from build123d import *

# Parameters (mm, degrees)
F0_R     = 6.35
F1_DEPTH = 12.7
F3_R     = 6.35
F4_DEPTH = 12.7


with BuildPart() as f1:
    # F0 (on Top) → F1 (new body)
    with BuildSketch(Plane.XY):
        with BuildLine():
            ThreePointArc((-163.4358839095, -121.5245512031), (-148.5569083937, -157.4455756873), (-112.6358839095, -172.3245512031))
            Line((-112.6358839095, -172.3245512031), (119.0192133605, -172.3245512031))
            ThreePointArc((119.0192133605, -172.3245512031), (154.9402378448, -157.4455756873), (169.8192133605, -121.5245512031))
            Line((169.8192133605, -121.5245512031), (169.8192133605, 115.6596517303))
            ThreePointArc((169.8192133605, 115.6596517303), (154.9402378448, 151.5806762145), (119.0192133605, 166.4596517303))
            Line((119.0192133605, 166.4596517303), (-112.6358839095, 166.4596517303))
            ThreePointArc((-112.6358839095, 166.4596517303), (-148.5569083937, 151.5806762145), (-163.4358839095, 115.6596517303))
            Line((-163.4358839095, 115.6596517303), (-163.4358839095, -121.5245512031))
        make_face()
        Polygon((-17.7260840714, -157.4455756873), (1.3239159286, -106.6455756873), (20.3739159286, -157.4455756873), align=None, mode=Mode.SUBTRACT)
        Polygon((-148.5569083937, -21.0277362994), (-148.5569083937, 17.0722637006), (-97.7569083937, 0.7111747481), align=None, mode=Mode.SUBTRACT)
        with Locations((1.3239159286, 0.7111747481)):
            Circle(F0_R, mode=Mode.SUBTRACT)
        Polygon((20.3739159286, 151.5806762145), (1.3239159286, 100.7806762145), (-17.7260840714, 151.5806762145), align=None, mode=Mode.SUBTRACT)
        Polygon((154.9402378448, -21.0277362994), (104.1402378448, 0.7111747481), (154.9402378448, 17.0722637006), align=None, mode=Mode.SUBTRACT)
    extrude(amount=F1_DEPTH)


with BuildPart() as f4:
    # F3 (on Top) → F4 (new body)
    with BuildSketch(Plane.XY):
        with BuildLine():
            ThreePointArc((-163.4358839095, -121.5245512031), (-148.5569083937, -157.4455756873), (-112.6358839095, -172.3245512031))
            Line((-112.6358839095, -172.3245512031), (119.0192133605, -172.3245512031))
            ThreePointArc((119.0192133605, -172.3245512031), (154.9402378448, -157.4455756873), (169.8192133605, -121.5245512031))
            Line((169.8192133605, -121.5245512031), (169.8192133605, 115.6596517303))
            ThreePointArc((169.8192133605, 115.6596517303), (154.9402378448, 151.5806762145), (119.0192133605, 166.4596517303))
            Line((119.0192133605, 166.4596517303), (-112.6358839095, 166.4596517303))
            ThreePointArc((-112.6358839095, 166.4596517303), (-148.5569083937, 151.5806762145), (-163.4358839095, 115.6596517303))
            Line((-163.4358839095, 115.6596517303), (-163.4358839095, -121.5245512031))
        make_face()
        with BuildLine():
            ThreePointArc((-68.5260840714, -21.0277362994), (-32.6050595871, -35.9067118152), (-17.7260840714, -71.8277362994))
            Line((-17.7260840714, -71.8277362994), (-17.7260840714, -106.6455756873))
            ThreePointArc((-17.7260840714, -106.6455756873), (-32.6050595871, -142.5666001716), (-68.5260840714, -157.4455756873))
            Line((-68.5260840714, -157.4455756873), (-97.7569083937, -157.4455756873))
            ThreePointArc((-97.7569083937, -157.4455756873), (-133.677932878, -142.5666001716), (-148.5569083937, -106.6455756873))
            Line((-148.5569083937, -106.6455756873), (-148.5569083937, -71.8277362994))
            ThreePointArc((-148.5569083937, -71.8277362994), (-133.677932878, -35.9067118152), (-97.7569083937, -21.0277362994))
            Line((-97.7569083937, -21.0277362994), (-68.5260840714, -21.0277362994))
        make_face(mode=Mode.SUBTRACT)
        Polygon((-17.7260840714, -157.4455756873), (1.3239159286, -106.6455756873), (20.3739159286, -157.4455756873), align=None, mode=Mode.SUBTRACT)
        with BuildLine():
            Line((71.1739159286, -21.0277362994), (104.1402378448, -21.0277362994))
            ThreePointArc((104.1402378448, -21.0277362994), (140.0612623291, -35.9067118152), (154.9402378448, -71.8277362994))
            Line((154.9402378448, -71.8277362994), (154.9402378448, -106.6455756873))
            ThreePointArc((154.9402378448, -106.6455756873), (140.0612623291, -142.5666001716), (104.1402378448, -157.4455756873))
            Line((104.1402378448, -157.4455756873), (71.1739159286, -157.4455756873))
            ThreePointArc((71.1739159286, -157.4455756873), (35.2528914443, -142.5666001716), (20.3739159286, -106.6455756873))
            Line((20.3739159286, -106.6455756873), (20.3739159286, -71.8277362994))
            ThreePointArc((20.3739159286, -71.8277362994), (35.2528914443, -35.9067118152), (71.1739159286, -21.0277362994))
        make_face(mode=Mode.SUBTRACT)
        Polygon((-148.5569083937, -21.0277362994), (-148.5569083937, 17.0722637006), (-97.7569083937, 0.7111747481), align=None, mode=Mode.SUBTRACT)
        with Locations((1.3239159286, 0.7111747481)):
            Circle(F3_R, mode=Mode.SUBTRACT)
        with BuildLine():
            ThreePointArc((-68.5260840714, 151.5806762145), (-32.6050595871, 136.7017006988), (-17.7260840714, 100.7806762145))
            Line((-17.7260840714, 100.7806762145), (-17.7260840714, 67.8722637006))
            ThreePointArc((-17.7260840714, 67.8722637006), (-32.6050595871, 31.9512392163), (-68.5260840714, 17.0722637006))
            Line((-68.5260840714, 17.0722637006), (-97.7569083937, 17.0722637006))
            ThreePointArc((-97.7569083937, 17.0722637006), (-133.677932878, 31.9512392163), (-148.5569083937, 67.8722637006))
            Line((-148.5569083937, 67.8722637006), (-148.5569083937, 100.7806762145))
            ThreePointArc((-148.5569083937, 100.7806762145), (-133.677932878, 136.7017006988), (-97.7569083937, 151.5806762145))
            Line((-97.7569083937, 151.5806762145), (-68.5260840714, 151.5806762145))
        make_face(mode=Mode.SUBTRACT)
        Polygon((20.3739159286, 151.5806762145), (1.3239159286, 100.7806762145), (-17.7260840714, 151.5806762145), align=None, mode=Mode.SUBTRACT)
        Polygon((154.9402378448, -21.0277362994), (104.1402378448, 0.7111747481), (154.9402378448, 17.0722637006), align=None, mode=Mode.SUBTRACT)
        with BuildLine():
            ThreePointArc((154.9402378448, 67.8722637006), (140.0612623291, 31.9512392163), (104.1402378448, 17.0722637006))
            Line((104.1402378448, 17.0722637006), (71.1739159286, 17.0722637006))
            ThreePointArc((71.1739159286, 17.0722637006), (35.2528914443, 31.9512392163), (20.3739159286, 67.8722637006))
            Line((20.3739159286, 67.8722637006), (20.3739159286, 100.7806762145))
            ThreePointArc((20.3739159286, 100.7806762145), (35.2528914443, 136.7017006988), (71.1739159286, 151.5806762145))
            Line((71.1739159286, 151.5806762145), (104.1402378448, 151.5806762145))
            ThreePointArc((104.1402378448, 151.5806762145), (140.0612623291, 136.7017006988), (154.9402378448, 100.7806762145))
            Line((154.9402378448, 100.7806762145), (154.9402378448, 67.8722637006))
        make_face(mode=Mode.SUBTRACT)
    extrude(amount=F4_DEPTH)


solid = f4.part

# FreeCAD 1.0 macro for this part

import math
import FreeCAD as App
import Part
import Sketcher
from FreeCAD import Vector
Q = App.Units.Quantity

doc = App.newDocument("Part")
body = doc.addObject("PartDesign::Body", "Body")

# Sketch on XY plane
sketch1 = doc.addObject("Sketcher::SketchObject", "Sketch")
body.addObject(sketch1)
sketch1.AttachmentSupport = (doc.XY_Plane, [""])
sketch1.MapMode = "FlatFace"
sketch1.addGeometry([
    Part.ArcOfCircle(Part.Circle(Vector(-113, -122, 0), Vector(0, 0, 1), 51), math.radians(180), math.radians(270)),  # 0
    Part.LineSegment(Vector(-113, -172, 0), Vector(119, -172, 0)),  # 1
    Part.ArcOfCircle(Part.Circle(Vector(119, -122, 0), Vector(0, 0, 1), 51), math.radians(-90), math.radians(0)),  # 2
    Part.LineSegment(Vector(170, -122, 0), Vector(170, 116, 0)),  # 3
    Part.ArcOfCircle(Part.Circle(Vector(119, 116, 0), Vector(0, 0, 1), 51), math.radians(0), math.radians(90)),  # 4
    Part.LineSegment(Vector(119, 166, 0), Vector(-113, 166, 0)),  # 5
    Part.ArcOfCircle(Part.Circle(Vector(-113, 116, 0), Vector(0, 0, 1), 51), math.radians(90), math.radians(180)),  # 6
    Part.LineSegment(Vector(-163, 116, 0), Vector(-163, -122, 0)),  # 7
    Part.LineSegment(Vector(20, -157, 0), Vector(-18, -157, 0)),  # 8
    Part.LineSegment(Vector(-18, -157, 0), Vector(1, -107, 0)),  # 9
    Part.LineSegment(Vector(1, -107, 0), Vector(20, -157, 0)),  # 10
    Part.LineSegment(Vector(-98, 1, 0), Vector(-149, -21, 0)),  # 11
    Part.LineSegment(Vector(-149, -21, 0), Vector(-149, 17, 0)),  # 12
    Part.LineSegment(Vector(-149, 17, 0), Vector(-98, 1, 0)),  # 13
    Part.Circle(Vector(1, 1, 0), Vector(0, 0, 1), 6),  # 14
    Part.LineSegment(Vector(-18, 152, 0), Vector(20, 152, 0)),  # 15
    Part.LineSegment(Vector(20, 152, 0), Vector(1, 101, 0)),  # 16
    Part.LineSegment(Vector(1, 101, 0), Vector(-18, 152, 0)),  # 17
    Part.LineSegment(Vector(155, 17, 0), Vector(155, -21, 0)),  # 18
    Part.LineSegment(Vector(155, -21, 0), Vector(104, 1, 0)),  # 19
    Part.LineSegment(Vector(104, 1, 0), Vector(155, 17, 0)),  # 20
], False)
sketch1.addConstraint([
    Sketcher.Constraint("Tangent", 0, 2, 1, 1),
    Sketcher.Constraint("Tangent", 1, 2, 2, 1),
    Sketcher.Constraint("Tangent", 2, 2, 3, 1),
    Sketcher.Constraint("Tangent", 3, 2, 4, 1),
    Sketcher.Constraint("Tangent", 4, 2, 5, 1),
    Sketcher.Constraint("Tangent", 5, 2, 6, 1),
    Sketcher.Constraint("Tangent", 6, 2, 7, 1),
    Sketcher.Constraint("Tangent", 7, 2, 0, 1),
    Sketcher.Constraint("Coincident", 8, 2, 9, 1),
    Sketcher.Constraint("Coincident", 9, 2, 10, 1),
    Sketcher.Constraint("Coincident", 10, 2, 8, 1),
    Sketcher.Constraint("Coincident", 11, 2, 12, 1),
    Sketcher.Constraint("Coincident", 12, 2, 13, 1),
    Sketcher.Constraint("Coincident", 13, 2, 11, 1),
    Sketcher.Constraint("Coincident", 15, 2, 16, 1),
    Sketcher.Constraint("Coincident", 16, 2, 17, 1),
    Sketcher.Constraint("Coincident", 17, 2, 15, 1),
    Sketcher.Constraint("Coincident", 18, 2, 19, 1),
    Sketcher.Constraint("Coincident", 19, 2, 20, 1),
    Sketcher.Constraint("Coincident", 20, 2, 18, 1),
    Sketcher.Constraint("Horizontal", 1),
    Sketcher.Constraint("Vertical", 3),
    Sketcher.Constraint("Horizontal", 5),
    Sketcher.Constraint("Vertical", 7),
    Sketcher.Constraint("Horizontal", 8),
    Sketcher.Constraint("Vertical", 12),
    Sketcher.Constraint("Horizontal", 15),
    Sketcher.Constraint("Vertical", 18),
    Sketcher.Constraint("Equal", 0, 2),
    Sketcher.Constraint("Equal", 2, 4),
    Sketcher.Constraint("Equal", 4, 6),
    Sketcher.Constraint("Parallel", 9, 16),
    Sketcher.Constraint("Parallel", 10, 17),
    Sketcher.Constraint("Horizontal", 14, 3, 13, 2),
    Sketcher.Constraint("Horizontal", 11, 2, 18, 2),
    Sketcher.Constraint("Horizontal", 13, 2, 19, 2),
    Sketcher.Constraint("Horizontal", 12, 2, 20, 2),
    Sketcher.Constraint("Vertical", 14, 3, 9, 2),
    Sketcher.Constraint("Vertical", 10, 2, 15, 2),
    Sketcher.Constraint("Vertical", 9, 2, 16, 2),
    Sketcher.Constraint("Vertical", 8, 2, 17, 2),
    Sketcher.Constraint("Equal", 15, 12),
    Sketcher.Constraint("Equal", 11, 19),
    Sketcher.Constraint("Radius", 0, Q("2 in")),
    Sketcher.Constraint("Diameter", 14, Q("0.5 in")),
    Sketcher.Constraint("DistanceX", 8, 2, 8, 1, Q("1.5 in")),
    Sketcher.Constraint("DistanceY", 8, 2, 9, 2, Q("2 in")),
    Sketcher.Constraint("DistanceX", 12, 2, 13, 2, Q("2 in")),
    Sketcher.Constraint("DistanceX", 6, 3, 14, 3, 113.9598),
    Sketcher.Constraint("DistanceY", 14, 3, 15, 2, 150.869501),
    Sketcher.Constraint("DistanceX", 1, 1, 1, 2, 231.655097),
    Sketcher.Constraint("DistanceY", 3, 1, 3, 2, 237.184203),
    Sketcher.Constraint("DistanceY", 0, 3, -1, 1, 121.524551),
    Sketcher.Constraint("DistanceX", 11, 2, -1, 1, 148.556908),
    Sketcher.Constraint("DistanceY", 9, 2, 14, 3, 107.35675),
    Sketcher.Constraint("DistanceY", 11, 2, 6, 2, 136.687388),
    Sketcher.Constraint("DistanceY", 11, 2, 14, 3, 21.738911),
    Sketcher.Constraint("DistanceX", 14, 3, 18, 2, 153.616322),
    Sketcher.Constraint("DistanceX", 0, 3, -1, 1, 112.635884),
])
pad1 = doc.addObject("PartDesign::Pad", "Pad")
body.addObject(pad1)
pad1.Profile = sketch1
pad1.Length = Q("0.5 in")
body2 = doc.addObject("PartDesign::Body", "Body001")

# Sketch on XY plane
sketch2 = doc.addObject("Sketcher::SketchObject", "Sketch001")
body2.addObject(sketch2)
sketch2.AttachmentSupport = (doc.getObject("XY_Plane001"), [""])
sketch2.MapMode = "FlatFace"
sketch2.addGeometry([
    Part.ArcOfCircle(Part.Circle(Vector(-113, -122, 0), Vector(0, 0, 1), 51), math.radians(180), math.radians(270)),  # 0
    Part.LineSegment(Vector(-113, -172, 0), Vector(119, -172, 0)),  # 1
    Part.ArcOfCircle(Part.Circle(Vector(119, -122, 0), Vector(0, 0, 1), 51), math.radians(-90), math.radians(0)),  # 2
    Part.LineSegment(Vector(170, -122, 0), Vector(170, 116, 0)),  # 3
    Part.ArcOfCircle(Part.Circle(Vector(119, 116, 0), Vector(0, 0, 1), 51), math.radians(0), math.radians(90)),  # 4
    Part.LineSegment(Vector(119, 166, 0), Vector(-113, 166, 0)),  # 5
    Part.ArcOfCircle(Part.Circle(Vector(-113, 116, 0), Vector(0, 0, 1), 51), math.radians(90), math.radians(180)),  # 6
    Part.LineSegment(Vector(-163, 116, 0), Vector(-163, -122, 0)),  # 7
    Part.LineSegment(Vector(-98, -21, 0), Vector(-69, -21, 0)),  # 8
    Part.ArcOfCircle(Part.Circle(Vector(-69, -72, 0), Vector(0, 0, 1), 51), math.radians(0), math.radians(90)),  # 9
    Part.LineSegment(Vector(-18, -72, 0), Vector(-18, -107, 0)),  # 10
    Part.ArcOfCircle(Part.Circle(Vector(-69, -107, 0), Vector(0, 0, 1), 51), math.radians(-90), math.radians(0)),  # 11
    Part.LineSegment(Vector(-69, -157, 0), Vector(-98, -157, 0)),  # 12
    Part.ArcOfCircle(Part.Circle(Vector(-98, -107, 0), Vector(0, 0, 1), 51), math.radians(180), math.radians(270)),  # 13
    Part.LineSegment(Vector(-149, -107, 0), Vector(-149, -72, 0)),  # 14
    Part.ArcOfCircle(Part.Circle(Vector(-98, -72, 0), Vector(0, 0, 1), 51), math.radians(90), math.radians(180)),  # 15
    Part.LineSegment(Vector(20, -157, 0), Vector(-18, -157, 0)),  # 16
    Part.LineSegment(Vector(-18, -157, 0), Vector(1, -107, 0)),  # 17
    Part.LineSegment(Vector(1, -107, 0), Vector(20, -157, 0)),  # 18
    Part.ArcOfCircle(Part.Circle(Vector(71, -72, 0), Vector(0, 0, 1), 51), math.radians(90), math.radians(180)),  # 19
    Part.LineSegment(Vector(71, -21, 0), Vector(104, -21, 0)),  # 20
    Part.ArcOfCircle(Part.Circle(Vector(104, -72, 0), Vector(0, 0, 1), 51), math.radians(0), math.radians(90)),  # 21
    Part.LineSegment(Vector(155, -72, 0), Vector(155, -107, 0)),  # 22
    Part.ArcOfCircle(Part.Circle(Vector(104, -107, 0), Vector(0, 0, 1), 51), math.radians(-90), math.radians(0)),  # 23
    Part.LineSegment(Vector(104, -157, 0), Vector(71, -157, 0)),  # 24
    Part.ArcOfCircle(Part.Circle(Vector(71, -107, 0), Vector(0, 0, 1), 51), math.radians(180), math.radians(270)),  # 25
    Part.LineSegment(Vector(20, -107, 0), Vector(20, -72, 0)),  # 26
    Part.LineSegment(Vector(-98, 1, 0), Vector(-149, -21, 0)),  # 27
    Part.LineSegment(Vector(-149, -21, 0), Vector(-149, 17, 0)),  # 28
    Part.LineSegment(Vector(-149, 17, 0), Vector(-98, 1, 0)),  # 29
    Part.Circle(Vector(1, 1, 0), Vector(0, 0, 1), 6),  # 30
    Part.LineSegment(Vector(-98, 152, 0), Vector(-69, 152, 0)),  # 31
    Part.ArcOfCircle(Part.Circle(Vector(-69, 101, 0), Vector(0, 0, 1), 51), math.radians(0), math.radians(90)),  # 32
    Part.LineSegment(Vector(-18, 101, 0), Vector(-18, 68, 0)),  # 33
    Part.ArcOfCircle(Part.Circle(Vector(-69, 68, 0), Vector(0, 0, 1), 51), math.radians(-90), math.radians(0)),  # 34
    Part.LineSegment(Vector(-69, 17, 0), Vector(-98, 17, 0)),  # 35
    Part.ArcOfCircle(Part.Circle(Vector(-98, 68, 0), Vector(0, 0, 1), 51), math.radians(180), math.radians(270)),  # 36
    Part.LineSegment(Vector(-149, 68, 0), Vector(-149, 101, 0)),  # 37
    Part.ArcOfCircle(Part.Circle(Vector(-98, 101, 0), Vector(0, 0, 1), 51), math.radians(90), math.radians(180)),  # 38
    Part.LineSegment(Vector(-18, 152, 0), Vector(20, 152, 0)),  # 39
    Part.LineSegment(Vector(20, 152, 0), Vector(1, 101, 0)),  # 40
    Part.LineSegment(Vector(1, 101, 0), Vector(-18, 152, 0)),  # 41
    Part.LineSegment(Vector(155, 17, 0), Vector(155, -21, 0)),  # 42
    Part.LineSegment(Vector(155, -21, 0), Vector(104, 1, 0)),  # 43
    Part.LineSegment(Vector(104, 1, 0), Vector(155, 17, 0)),  # 44
    Part.LineSegment(Vector(155, 101, 0), Vector(155, 68, 0)),  # 45
    Part.ArcOfCircle(Part.Circle(Vector(104, 68, 0), Vector(0, 0, 1), 51), math.radians(-90), math.radians(0)),  # 46
    Part.LineSegment(Vector(104, 17, 0), Vector(71, 17, 0)),  # 47
    Part.ArcOfCircle(Part.Circle(Vector(71, 68, 0), Vector(0, 0, 1), 51), math.radians(180), math.radians(270)),  # 48
    Part.LineSegment(Vector(20, 68, 0), Vector(20, 101, 0)),  # 49
    Part.ArcOfCircle(Part.Circle(Vector(71, 101, 0), Vector(0, 0, 1), 51), math.radians(90), math.radians(180)),  # 50
    Part.LineSegment(Vector(71, 152, 0), Vector(104, 152, 0)),  # 51
    Part.ArcOfCircle(Part.Circle(Vector(104, 101, 0), Vector(0, 0, 1), 51), math.radians(0), math.radians(90)),  # 52
], False)
sketch2.addConstraint([
    Sketcher.Constraint("Tangent", 0, 2, 1, 1),
    Sketcher.Constraint("Tangent", 1, 2, 2, 1),
    Sketcher.Constraint("Tangent", 2, 2, 3, 1),
    Sketcher.Constraint("Tangent", 3, 2, 4, 1),
    Sketcher.Constraint("Tangent", 4, 2, 5, 1),
    Sketcher.Constraint("Tangent", 5, 2, 6, 1),
    Sketcher.Constraint("Tangent", 6, 2, 7, 1),
    Sketcher.Constraint("Tangent", 7, 2, 0, 1),
    Sketcher.Constraint("Tangent", 8, 2, 9, 2),
    Sketcher.Constraint("Tangent", 9, 1, 10, 1),
    Sketcher.Constraint("Tangent", 10, 2, 11, 2),
    Sketcher.Constraint("Tangent", 11, 1, 12, 1),
    Sketcher.Constraint("Tangent", 12, 2, 13, 2),
    Sketcher.Constraint("Tangent", 13, 1, 14, 1),
    Sketcher.Constraint("Tangent", 14, 2, 15, 2),
    Sketcher.Constraint("Tangent", 15, 1, 8, 1),
    Sketcher.Constraint("Coincident", 16, 2, 17, 1),
    Sketcher.Constraint("Coincident", 17, 2, 18, 1),
    Sketcher.Constraint("Coincident", 18, 2, 16, 1),
    Sketcher.Constraint("Tangent", 19, 1, 20, 1),
    Sketcher.Constraint("Tangent", 20, 2, 21, 2),
    Sketcher.Constraint("Tangent", 21, 1, 22, 1),
    Sketcher.Constraint("Tangent", 22, 2, 23, 2),
    Sketcher.Constraint("Tangent", 23, 1, 24, 1),
    Sketcher.Constraint("Tangent", 24, 2, 25, 2),
    Sketcher.Constraint("Tangent", 25, 1, 26, 1),
    Sketcher.Constraint("Tangent", 26, 2, 19, 2),
    Sketcher.Constraint("Coincident", 27, 2, 28, 1),
    Sketcher.Constraint("Coincident", 28, 2, 29, 1),
    Sketcher.Constraint("Coincident", 29, 2, 27, 1),
    Sketcher.Constraint("Tangent", 31, 2, 32, 2),
    Sketcher.Constraint("Tangent", 32, 1, 33, 1),
    Sketcher.Constraint("Tangent", 33, 2, 34, 2),
    Sketcher.Constraint("Tangent", 34, 1, 35, 1),
    Sketcher.Constraint("Tangent", 35, 2, 36, 2),
    Sketcher.Constraint("Tangent", 36, 1, 37, 1),
    Sketcher.Constraint("Tangent", 37, 2, 38, 2),
    Sketcher.Constraint("Tangent", 38, 1, 31, 1),
    Sketcher.Constraint("Coincident", 39, 2, 40, 1),
    Sketcher.Constraint("Coincident", 40, 2, 41, 1),
    Sketcher.Constraint("Coincident", 41, 2, 39, 1),
    Sketcher.Constraint("Coincident", 42, 2, 43, 1),
    Sketcher.Constraint("Coincident", 43, 2, 44, 1),
    Sketcher.Constraint("Coincident", 44, 2, 42, 1),
    Sketcher.Constraint("Tangent", 45, 2, 46, 2),
    Sketcher.Constraint("Tangent", 46, 1, 47, 1),
    Sketcher.Constraint("Tangent", 47, 2, 48, 2),
    Sketcher.Constraint("Tangent", 48, 1, 49, 1),
    Sketcher.Constraint("Tangent", 49, 2, 50, 2),
    Sketcher.Constraint("Tangent", 50, 1, 51, 1),
    Sketcher.Constraint("Tangent", 51, 2, 52, 2),
    Sketcher.Constraint("Tangent", 52, 1, 45, 1),
    Sketcher.Constraint("Horizontal", 1),
    Sketcher.Constraint("Vertical", 3),
    Sketcher.Constraint("Horizontal", 5),
    Sketcher.Constraint("Vertical", 7),
    Sketcher.Constraint("Horizontal", 8),
    Sketcher.Constraint("Vertical", 10),
    Sketcher.Constraint("Horizontal", 12),
    Sketcher.Constraint("Vertical", 14),
    Sketcher.Constraint("Horizontal", 16),
    Sketcher.Constraint("Horizontal", 20),
    Sketcher.Constraint("Vertical", 22),
    Sketcher.Constraint("Horizontal", 24),
    Sketcher.Constraint("Vertical", 26),
    Sketcher.Constraint("Vertical", 28),
    Sketcher.Constraint("Horizontal", 31),
    Sketcher.Constraint("Vertical", 33),
    Sketcher.Constraint("Horizontal", 35),
    Sketcher.Constraint("Vertical", 37),
    Sketcher.Constraint("Horizontal", 39),
    Sketcher.Constraint("Vertical", 42),
    Sketcher.Constraint("Vertical", 45),
    Sketcher.Constraint("Horizontal", 47),
    Sketcher.Constraint("Vertical", 49),
    Sketcher.Constraint("Horizontal", 51),
    Sketcher.Constraint("Equal", 0, 2),
    Sketcher.Constraint("Equal", 2, 4),
    Sketcher.Constraint("Equal", 4, 6),
    Sketcher.Constraint("Equal", 6, 9),
    Sketcher.Constraint("Equal", 9, 11),
    Sketcher.Constraint("Equal", 11, 13),
    Sketcher.Constraint("Equal", 13, 15),
    Sketcher.Constraint("Equal", 15, 19),
    Sketcher.Constraint("Equal", 19, 21),
    Sketcher.Constraint("Equal", 21, 23),
    Sketcher.Constraint("Equal", 23, 25),
    Sketcher.Constraint("Equal", 25, 32),
    Sketcher.Constraint("Equal", 32, 34),
    Sketcher.Constraint("Equal", 34, 36),
    Sketcher.Constraint("Equal", 36, 38),
    Sketcher.Constraint("Equal", 38, 46),
    Sketcher.Constraint("Equal", 46, 48),
    Sketcher.Constraint("Equal", 48, 50),
    Sketcher.Constraint("Equal", 50, 52),
    Sketcher.Constraint("Parallel", 17, 40),
    Sketcher.Constraint("Parallel", 18, 41),
    Sketcher.Constraint("Horizontal", 15, 3, 19, 3),
    Sketcher.Constraint("Horizontal", 13, 3, 23, 3),
    Sketcher.Constraint("Horizontal", 36, 3, 46, 3),
    Sketcher.Constraint("Horizontal", 38, 3, 50, 3),
    Sketcher.Constraint("Horizontal", 12, 2, 16, 2),
    Sketcher.Constraint("Horizontal", 13, 1, 17, 2),
    Sketcher.Constraint("Horizontal", 20, 2, 27, 2),
    Sketcher.Constraint("Horizontal", 30, 3, 29, 2),
    Sketcher.Constraint("Horizontal", 28, 2, 34, 1),
    Sketcher.Constraint("Horizontal", 38, 1, 39, 2),
    Sketcher.Constraint("Horizontal", 37, 2, 40, 2),
    Sketcher.Constraint("Horizontal", 27, 2, 42, 2),
    Sketcher.Constraint("Horizontal", 29, 2, 43, 2),
    Sketcher.Constraint("Horizontal", 35, 2, 44, 2),
    Sketcher.Constraint("Vertical", 11, 3, 32, 3),
    Sketcher.Constraint("Vertical", 15, 3, 36, 3),
    Sketcher.Constraint("Vertical", 23, 3, 46, 3),
    Sketcher.Constraint("Vertical", 25, 3, 48, 3),
    Sketcher.Constraint("Vertical", 10, 2, 16, 2),
    Sketcher.Constraint("Vertical", 30, 3, 17, 2),
    Sketcher.Constraint("Vertical", 18, 2, 25, 1),
    Sketcher.Constraint("Vertical", 14, 2, 27, 2),
    Sketcher.Constraint("Vertical", 15, 1, 29, 2),
    Sketcher.Constraint("Vertical", 26, 2, 39, 2),
    Sketcher.Constraint("Vertical", 17, 2, 40, 2),
    Sketcher.Constraint("Vertical", 22, 2, 42, 2),
    Sketcher.Constraint("Vertical", 23, 1, 43, 2),
    Sketcher.Constraint("Equal", 39, 28),
    Sketcher.Constraint("Radius", 0, Q("2 in")),
    Sketcher.Constraint("Diameter", 30, Q("0.5 in")),
    Sketcher.Constraint("DistanceX", 16, 2, 16, 1, Q("1.5 in")),
    Sketcher.Constraint("DistanceX", 20, 1, 20, 2, 32.966322),
    Sketcher.Constraint("DistanceY", 10, 2, 10, 1, 34.817839),
    Sketcher.Constraint("DistanceX", 1, 1, 1, 2, 231.655097),
    Sketcher.Constraint("DistanceX", 8, 1, 8, 2, 29.230824),
    Sketcher.Constraint("DistanceY", 3, 1, 3, 2, 237.184203),
    Sketcher.Constraint("DistanceY", 33, 2, 33, 1, 32.908413),
    Sketcher.Constraint("DistanceY", 0, 3, -1, 1, 121.524551),
    Sketcher.Constraint("DistanceX", 13, 3, -1, 1, 97.756908),
    Sketcher.Constraint("Distance", 27, 55.255952),
    Sketcher.Constraint("DistanceX", 0, 3, -1, 1, 112.635884),
    Sketcher.Constraint("DistanceY", 9, 3, -1, 1, 71.827736),
])
pad2 = doc.addObject("PartDesign::Pad", "Pad001")
body2.addObject(pad2)
pad2.Profile = sketch2
pad2.Length = Q("0.5 in")
body.Visibility = False

doc.recompute()
